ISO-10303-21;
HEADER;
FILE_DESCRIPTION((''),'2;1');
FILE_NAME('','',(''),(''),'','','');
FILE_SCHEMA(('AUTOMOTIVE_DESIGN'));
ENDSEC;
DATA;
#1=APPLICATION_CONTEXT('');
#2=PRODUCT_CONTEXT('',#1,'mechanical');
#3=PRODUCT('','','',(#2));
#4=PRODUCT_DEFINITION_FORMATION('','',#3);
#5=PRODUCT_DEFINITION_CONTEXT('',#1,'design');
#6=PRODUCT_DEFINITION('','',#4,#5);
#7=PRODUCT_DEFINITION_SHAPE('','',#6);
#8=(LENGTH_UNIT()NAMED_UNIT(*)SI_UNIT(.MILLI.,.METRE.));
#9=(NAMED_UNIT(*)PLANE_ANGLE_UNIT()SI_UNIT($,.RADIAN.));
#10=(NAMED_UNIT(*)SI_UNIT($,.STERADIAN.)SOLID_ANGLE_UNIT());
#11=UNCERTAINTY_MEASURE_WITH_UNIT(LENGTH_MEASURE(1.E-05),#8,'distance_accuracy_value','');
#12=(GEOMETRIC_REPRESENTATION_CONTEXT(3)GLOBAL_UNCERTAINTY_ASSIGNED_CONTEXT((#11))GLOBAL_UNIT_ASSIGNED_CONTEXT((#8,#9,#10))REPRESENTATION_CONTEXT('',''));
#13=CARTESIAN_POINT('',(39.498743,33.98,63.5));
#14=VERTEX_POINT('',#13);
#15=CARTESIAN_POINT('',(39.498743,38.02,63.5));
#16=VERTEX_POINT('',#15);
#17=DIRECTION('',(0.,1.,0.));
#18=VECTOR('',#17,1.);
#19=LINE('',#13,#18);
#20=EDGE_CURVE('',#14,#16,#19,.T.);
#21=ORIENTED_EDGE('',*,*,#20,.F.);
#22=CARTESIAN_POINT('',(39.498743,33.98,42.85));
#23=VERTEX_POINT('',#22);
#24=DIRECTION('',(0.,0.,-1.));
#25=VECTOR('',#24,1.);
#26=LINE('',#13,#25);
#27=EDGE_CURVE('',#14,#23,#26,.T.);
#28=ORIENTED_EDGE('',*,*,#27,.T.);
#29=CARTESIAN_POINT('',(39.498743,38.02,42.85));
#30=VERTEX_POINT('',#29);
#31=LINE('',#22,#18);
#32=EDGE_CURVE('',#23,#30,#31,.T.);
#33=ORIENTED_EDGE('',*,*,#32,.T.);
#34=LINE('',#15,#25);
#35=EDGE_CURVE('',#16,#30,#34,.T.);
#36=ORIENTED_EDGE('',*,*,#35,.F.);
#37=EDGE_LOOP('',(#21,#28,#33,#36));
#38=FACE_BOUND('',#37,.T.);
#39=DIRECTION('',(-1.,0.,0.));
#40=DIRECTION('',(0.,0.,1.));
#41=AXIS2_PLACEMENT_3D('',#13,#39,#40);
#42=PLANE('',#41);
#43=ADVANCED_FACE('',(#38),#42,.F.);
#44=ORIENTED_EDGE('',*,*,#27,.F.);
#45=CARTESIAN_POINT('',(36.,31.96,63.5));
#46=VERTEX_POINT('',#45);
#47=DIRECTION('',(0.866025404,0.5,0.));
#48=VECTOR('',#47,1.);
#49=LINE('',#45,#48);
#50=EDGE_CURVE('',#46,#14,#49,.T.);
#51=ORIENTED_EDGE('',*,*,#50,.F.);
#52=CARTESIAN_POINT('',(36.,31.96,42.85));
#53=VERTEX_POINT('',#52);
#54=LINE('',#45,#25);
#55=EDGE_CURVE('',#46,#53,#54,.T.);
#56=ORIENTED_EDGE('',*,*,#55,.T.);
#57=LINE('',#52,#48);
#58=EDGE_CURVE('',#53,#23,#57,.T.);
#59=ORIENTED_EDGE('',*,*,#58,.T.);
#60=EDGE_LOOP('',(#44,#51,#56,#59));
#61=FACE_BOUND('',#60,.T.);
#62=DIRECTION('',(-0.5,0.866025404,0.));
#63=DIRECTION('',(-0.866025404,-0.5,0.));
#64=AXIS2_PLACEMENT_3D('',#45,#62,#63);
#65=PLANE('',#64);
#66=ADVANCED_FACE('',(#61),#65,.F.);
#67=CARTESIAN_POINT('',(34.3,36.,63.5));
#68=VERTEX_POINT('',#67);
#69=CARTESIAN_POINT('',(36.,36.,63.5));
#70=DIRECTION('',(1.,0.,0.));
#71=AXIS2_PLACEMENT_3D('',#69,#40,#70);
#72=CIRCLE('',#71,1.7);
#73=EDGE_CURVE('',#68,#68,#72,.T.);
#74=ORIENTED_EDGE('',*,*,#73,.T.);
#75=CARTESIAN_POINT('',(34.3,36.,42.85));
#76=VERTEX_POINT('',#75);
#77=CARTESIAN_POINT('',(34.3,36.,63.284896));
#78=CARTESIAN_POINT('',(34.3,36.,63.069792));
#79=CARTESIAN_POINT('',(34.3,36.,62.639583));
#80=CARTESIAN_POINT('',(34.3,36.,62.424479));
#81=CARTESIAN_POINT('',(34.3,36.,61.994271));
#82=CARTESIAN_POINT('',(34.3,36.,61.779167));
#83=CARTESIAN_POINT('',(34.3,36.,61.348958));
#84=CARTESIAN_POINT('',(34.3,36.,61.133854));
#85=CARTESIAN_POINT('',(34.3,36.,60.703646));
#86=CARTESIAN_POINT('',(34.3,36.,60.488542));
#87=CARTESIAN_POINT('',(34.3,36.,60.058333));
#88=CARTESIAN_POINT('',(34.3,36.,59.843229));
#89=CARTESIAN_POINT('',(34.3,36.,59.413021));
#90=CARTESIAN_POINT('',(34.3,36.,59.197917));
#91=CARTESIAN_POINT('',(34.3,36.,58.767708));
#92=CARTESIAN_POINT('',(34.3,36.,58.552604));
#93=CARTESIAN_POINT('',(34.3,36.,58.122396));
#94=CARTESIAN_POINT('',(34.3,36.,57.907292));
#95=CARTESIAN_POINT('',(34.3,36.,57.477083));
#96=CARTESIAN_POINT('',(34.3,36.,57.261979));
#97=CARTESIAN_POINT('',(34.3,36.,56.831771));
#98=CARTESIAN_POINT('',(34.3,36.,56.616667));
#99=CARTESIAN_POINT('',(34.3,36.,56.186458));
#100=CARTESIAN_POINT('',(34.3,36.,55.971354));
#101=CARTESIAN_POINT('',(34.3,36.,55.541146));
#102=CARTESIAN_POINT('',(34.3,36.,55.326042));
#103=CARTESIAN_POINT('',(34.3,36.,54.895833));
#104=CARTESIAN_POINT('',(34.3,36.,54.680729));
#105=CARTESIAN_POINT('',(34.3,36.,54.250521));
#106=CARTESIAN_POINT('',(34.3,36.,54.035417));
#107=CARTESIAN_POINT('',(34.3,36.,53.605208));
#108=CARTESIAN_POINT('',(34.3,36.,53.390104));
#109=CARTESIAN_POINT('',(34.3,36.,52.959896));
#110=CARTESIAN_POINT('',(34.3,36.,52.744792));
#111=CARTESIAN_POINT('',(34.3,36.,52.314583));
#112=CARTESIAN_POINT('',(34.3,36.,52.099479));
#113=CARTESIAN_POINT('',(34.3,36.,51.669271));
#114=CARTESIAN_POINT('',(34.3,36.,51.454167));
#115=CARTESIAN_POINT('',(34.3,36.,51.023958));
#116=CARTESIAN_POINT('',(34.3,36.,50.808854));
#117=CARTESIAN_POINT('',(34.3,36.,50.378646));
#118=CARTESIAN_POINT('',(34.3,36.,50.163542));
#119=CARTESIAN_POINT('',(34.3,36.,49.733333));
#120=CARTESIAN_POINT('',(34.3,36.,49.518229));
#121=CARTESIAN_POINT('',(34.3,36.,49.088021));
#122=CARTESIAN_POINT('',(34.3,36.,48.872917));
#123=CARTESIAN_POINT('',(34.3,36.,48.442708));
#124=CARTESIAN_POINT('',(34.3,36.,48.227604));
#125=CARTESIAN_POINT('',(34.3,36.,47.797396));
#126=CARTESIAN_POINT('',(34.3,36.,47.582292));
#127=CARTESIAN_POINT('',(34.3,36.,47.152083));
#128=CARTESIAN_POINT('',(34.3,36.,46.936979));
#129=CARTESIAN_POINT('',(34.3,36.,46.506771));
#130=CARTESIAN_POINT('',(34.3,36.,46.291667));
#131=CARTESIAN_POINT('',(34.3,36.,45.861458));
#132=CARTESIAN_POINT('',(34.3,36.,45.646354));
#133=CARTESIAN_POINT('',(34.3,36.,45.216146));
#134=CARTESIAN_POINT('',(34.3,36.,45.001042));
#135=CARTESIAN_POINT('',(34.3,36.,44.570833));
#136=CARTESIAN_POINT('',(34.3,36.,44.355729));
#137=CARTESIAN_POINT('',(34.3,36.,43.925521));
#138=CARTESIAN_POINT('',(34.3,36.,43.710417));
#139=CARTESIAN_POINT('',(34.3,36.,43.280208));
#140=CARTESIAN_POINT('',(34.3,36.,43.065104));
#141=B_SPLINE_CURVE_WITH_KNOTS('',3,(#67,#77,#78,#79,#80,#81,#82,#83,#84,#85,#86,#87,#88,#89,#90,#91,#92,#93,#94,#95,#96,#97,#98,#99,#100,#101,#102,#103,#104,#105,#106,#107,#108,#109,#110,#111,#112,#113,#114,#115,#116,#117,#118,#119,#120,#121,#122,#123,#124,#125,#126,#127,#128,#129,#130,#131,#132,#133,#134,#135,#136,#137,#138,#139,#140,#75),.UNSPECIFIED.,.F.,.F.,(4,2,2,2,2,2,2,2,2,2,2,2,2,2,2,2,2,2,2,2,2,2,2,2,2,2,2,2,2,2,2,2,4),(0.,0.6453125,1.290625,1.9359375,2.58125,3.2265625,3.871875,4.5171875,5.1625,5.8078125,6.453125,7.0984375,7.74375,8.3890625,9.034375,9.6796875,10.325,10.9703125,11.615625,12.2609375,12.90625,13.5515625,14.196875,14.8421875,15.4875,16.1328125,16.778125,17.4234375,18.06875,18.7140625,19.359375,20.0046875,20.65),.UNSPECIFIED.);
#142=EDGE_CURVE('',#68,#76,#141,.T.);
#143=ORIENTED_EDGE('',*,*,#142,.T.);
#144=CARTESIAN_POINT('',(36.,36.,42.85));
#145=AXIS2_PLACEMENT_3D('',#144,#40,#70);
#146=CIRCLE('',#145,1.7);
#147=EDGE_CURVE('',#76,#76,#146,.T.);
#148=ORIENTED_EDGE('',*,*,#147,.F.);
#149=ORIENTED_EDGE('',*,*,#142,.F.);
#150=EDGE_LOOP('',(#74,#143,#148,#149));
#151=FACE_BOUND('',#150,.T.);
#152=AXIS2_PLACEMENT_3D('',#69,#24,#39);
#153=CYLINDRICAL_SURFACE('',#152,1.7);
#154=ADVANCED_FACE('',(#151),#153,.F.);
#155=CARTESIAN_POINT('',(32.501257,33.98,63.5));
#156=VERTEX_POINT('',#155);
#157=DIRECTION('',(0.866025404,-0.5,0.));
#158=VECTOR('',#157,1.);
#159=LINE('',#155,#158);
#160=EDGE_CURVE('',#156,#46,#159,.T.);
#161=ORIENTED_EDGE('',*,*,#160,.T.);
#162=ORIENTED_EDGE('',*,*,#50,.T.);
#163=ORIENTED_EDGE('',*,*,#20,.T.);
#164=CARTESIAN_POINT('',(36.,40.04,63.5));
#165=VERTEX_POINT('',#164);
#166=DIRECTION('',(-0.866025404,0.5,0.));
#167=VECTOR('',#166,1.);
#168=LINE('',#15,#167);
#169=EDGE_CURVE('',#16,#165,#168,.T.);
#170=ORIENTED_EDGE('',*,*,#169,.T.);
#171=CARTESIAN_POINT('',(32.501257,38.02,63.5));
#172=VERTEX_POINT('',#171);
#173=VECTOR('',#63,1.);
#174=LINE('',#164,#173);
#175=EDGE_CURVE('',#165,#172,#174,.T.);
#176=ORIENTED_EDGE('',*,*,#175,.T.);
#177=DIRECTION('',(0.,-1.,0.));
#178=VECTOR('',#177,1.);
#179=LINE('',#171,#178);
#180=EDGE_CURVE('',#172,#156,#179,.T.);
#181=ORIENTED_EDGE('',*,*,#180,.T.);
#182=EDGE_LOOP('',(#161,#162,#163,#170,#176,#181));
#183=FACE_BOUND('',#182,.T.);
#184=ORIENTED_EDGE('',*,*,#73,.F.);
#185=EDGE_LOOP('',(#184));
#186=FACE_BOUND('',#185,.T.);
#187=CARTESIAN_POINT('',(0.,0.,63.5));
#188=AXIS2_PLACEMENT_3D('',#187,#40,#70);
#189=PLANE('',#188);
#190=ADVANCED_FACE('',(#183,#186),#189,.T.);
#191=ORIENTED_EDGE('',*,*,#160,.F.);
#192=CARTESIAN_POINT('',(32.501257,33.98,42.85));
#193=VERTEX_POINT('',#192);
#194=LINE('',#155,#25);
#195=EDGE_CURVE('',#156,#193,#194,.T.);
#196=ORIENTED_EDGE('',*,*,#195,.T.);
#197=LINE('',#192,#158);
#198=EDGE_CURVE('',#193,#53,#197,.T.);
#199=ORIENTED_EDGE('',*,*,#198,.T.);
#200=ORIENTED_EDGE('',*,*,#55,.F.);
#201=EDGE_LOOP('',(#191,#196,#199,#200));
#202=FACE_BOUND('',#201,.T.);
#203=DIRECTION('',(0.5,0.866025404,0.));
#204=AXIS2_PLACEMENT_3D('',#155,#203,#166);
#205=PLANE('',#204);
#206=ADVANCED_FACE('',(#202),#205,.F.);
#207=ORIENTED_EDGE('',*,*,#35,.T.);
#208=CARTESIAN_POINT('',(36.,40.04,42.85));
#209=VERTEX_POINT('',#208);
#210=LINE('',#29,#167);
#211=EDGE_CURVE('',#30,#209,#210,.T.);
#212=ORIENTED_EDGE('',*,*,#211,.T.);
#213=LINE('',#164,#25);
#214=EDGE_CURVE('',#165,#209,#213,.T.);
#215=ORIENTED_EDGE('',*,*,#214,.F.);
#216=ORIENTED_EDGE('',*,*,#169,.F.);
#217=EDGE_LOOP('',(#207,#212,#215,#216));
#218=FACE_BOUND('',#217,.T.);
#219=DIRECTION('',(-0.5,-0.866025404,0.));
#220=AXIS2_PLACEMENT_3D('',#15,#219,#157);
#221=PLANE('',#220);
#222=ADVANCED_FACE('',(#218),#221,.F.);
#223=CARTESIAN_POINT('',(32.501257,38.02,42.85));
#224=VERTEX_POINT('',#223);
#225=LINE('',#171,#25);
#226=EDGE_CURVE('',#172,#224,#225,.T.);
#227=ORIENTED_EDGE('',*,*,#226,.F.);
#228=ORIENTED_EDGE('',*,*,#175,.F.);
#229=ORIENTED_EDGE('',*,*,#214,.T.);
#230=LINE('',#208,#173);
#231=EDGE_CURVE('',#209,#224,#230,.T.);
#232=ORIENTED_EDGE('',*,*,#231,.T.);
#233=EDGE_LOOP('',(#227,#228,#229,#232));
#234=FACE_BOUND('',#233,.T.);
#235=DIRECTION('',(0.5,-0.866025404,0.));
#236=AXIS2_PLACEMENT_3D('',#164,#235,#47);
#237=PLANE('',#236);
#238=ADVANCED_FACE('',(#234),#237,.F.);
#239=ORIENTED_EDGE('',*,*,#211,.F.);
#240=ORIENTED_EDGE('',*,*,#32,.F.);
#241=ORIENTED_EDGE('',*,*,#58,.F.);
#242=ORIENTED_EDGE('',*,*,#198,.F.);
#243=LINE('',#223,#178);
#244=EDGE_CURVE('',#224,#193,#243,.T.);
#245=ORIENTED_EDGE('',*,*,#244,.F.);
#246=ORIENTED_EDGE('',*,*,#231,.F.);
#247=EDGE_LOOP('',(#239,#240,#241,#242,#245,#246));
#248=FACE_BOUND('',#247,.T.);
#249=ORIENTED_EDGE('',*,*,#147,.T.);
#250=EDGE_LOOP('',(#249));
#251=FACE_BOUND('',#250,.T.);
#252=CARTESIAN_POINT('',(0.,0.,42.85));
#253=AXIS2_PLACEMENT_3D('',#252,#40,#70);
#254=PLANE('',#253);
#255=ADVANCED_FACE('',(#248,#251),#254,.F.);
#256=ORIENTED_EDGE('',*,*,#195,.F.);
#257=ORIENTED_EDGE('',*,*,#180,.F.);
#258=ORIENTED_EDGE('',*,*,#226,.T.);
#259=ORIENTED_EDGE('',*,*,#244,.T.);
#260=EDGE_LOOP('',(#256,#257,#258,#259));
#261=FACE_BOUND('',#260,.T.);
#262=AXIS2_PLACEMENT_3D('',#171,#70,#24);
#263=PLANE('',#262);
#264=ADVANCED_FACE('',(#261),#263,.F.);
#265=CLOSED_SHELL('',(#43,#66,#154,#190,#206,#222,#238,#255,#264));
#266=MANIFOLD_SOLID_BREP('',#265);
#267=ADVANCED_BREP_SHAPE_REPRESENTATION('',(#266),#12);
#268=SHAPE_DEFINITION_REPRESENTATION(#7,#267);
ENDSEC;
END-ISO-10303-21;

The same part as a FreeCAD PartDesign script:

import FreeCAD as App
import Part
import Sketcher

V = App.Vector
Q = App.Units.Quantity


def add_polygon(sketch, points):
    """Adds a closed chain of lines whose ends are joined by coincident constraints."""
    first, n = sketch.GeometryCount, len(points)
    for a, b in zip(points, points[1:] + points[:1]):
        sketch.addGeometry(Part.LineSegment(App.Vector(*a, 0), App.Vector(*b, 0)), False)
    for i in range(n):
        sketch.addConstraint(Sketcher.Constraint("Coincident", first + i, 2, first + (i + 1) % n, 1))

doc = App.newDocument("Part")
body = doc.addObject("PartDesign::Body", "Body")

sketch1 = doc.addObject("Sketcher::SketchObject", "Sketch")
body.addObject(sketch1)
sketch1.AttachmentSupport = (doc.XY_Plane, [""])
sketch1.MapMode = "FlatFace"
sketch1.AttachmentOffset = App.Placement(V(0, 0, 42.85), App.Rotation())
add_polygon(sketch1, [(39.498743, 38.02), (36, 40.04), (32.501257, 38.02), (32.501257, 33.98), (36, 31.96), (39.498743, 33.98)])
sketch1.addConstraint([
    Sketcher.Constraint("Vertical", 2),
    Sketcher.Constraint("Vertical", 5),
    Sketcher.Constraint("Parallel", 0, 3),
    Sketcher.Constraint("Parallel", 1, 4),
    Sketcher.Constraint("Horizontal", 2, 2, 4, 2),
    Sketcher.Constraint("Horizontal", 1, 2, 5, 2),
    Sketcher.Constraint("Vertical", 0, 2, 3, 2),
    Sketcher.Constraint("Angle", 0, Q("150 deg")),
    Sketcher.Constraint("DistanceX", -1, 1, 0, 2, 36.0),
    Sketcher.Constraint("DistanceY", 2, 2, 2, 1, 4.04),
    Sketcher.Constraint("Distance", 0, 4.04),
    Sketcher.Constraint("DistanceY", -1, 1, 0, 2, 40.04),
])
pad1 = doc.addObject("PartDesign::Pad", "Pad")
body.addObject(pad1)
pad1.Profile = sketch1
pad1.Length = 20.65

sketch2 = doc.addObject("Sketcher::SketchObject", "Sketch001")
body.addObject(sketch2)
sketch2.AttachmentSupport = (doc.XY_Plane, [""])
sketch2.MapMode = "FlatFace"
sketch2.AttachmentOffset = App.Placement(V(0, 0, 42.85), App.Rotation())
sketch2.addGeometry(Part.Circle(V(36, 36, 0), V(0, 0, 1), 1.7), False)
sketch2.addConstraint([
    Sketcher.Constraint("Diameter", 0, 3.4),
    Sketcher.Constraint("DistanceX", -1, 1, 0, 3, 36.0),
    Sketcher.Constraint("DistanceY", -1, 1, 0, 3, 36.0),
])
pocket1 = doc.addObject("PartDesign::Pocket", "Pocket")
body.addObject(pocket1)
pocket1.Profile = sketch2
pocket1.Length = 20.65
pocket1.Reversed = True

doc.recompute()
